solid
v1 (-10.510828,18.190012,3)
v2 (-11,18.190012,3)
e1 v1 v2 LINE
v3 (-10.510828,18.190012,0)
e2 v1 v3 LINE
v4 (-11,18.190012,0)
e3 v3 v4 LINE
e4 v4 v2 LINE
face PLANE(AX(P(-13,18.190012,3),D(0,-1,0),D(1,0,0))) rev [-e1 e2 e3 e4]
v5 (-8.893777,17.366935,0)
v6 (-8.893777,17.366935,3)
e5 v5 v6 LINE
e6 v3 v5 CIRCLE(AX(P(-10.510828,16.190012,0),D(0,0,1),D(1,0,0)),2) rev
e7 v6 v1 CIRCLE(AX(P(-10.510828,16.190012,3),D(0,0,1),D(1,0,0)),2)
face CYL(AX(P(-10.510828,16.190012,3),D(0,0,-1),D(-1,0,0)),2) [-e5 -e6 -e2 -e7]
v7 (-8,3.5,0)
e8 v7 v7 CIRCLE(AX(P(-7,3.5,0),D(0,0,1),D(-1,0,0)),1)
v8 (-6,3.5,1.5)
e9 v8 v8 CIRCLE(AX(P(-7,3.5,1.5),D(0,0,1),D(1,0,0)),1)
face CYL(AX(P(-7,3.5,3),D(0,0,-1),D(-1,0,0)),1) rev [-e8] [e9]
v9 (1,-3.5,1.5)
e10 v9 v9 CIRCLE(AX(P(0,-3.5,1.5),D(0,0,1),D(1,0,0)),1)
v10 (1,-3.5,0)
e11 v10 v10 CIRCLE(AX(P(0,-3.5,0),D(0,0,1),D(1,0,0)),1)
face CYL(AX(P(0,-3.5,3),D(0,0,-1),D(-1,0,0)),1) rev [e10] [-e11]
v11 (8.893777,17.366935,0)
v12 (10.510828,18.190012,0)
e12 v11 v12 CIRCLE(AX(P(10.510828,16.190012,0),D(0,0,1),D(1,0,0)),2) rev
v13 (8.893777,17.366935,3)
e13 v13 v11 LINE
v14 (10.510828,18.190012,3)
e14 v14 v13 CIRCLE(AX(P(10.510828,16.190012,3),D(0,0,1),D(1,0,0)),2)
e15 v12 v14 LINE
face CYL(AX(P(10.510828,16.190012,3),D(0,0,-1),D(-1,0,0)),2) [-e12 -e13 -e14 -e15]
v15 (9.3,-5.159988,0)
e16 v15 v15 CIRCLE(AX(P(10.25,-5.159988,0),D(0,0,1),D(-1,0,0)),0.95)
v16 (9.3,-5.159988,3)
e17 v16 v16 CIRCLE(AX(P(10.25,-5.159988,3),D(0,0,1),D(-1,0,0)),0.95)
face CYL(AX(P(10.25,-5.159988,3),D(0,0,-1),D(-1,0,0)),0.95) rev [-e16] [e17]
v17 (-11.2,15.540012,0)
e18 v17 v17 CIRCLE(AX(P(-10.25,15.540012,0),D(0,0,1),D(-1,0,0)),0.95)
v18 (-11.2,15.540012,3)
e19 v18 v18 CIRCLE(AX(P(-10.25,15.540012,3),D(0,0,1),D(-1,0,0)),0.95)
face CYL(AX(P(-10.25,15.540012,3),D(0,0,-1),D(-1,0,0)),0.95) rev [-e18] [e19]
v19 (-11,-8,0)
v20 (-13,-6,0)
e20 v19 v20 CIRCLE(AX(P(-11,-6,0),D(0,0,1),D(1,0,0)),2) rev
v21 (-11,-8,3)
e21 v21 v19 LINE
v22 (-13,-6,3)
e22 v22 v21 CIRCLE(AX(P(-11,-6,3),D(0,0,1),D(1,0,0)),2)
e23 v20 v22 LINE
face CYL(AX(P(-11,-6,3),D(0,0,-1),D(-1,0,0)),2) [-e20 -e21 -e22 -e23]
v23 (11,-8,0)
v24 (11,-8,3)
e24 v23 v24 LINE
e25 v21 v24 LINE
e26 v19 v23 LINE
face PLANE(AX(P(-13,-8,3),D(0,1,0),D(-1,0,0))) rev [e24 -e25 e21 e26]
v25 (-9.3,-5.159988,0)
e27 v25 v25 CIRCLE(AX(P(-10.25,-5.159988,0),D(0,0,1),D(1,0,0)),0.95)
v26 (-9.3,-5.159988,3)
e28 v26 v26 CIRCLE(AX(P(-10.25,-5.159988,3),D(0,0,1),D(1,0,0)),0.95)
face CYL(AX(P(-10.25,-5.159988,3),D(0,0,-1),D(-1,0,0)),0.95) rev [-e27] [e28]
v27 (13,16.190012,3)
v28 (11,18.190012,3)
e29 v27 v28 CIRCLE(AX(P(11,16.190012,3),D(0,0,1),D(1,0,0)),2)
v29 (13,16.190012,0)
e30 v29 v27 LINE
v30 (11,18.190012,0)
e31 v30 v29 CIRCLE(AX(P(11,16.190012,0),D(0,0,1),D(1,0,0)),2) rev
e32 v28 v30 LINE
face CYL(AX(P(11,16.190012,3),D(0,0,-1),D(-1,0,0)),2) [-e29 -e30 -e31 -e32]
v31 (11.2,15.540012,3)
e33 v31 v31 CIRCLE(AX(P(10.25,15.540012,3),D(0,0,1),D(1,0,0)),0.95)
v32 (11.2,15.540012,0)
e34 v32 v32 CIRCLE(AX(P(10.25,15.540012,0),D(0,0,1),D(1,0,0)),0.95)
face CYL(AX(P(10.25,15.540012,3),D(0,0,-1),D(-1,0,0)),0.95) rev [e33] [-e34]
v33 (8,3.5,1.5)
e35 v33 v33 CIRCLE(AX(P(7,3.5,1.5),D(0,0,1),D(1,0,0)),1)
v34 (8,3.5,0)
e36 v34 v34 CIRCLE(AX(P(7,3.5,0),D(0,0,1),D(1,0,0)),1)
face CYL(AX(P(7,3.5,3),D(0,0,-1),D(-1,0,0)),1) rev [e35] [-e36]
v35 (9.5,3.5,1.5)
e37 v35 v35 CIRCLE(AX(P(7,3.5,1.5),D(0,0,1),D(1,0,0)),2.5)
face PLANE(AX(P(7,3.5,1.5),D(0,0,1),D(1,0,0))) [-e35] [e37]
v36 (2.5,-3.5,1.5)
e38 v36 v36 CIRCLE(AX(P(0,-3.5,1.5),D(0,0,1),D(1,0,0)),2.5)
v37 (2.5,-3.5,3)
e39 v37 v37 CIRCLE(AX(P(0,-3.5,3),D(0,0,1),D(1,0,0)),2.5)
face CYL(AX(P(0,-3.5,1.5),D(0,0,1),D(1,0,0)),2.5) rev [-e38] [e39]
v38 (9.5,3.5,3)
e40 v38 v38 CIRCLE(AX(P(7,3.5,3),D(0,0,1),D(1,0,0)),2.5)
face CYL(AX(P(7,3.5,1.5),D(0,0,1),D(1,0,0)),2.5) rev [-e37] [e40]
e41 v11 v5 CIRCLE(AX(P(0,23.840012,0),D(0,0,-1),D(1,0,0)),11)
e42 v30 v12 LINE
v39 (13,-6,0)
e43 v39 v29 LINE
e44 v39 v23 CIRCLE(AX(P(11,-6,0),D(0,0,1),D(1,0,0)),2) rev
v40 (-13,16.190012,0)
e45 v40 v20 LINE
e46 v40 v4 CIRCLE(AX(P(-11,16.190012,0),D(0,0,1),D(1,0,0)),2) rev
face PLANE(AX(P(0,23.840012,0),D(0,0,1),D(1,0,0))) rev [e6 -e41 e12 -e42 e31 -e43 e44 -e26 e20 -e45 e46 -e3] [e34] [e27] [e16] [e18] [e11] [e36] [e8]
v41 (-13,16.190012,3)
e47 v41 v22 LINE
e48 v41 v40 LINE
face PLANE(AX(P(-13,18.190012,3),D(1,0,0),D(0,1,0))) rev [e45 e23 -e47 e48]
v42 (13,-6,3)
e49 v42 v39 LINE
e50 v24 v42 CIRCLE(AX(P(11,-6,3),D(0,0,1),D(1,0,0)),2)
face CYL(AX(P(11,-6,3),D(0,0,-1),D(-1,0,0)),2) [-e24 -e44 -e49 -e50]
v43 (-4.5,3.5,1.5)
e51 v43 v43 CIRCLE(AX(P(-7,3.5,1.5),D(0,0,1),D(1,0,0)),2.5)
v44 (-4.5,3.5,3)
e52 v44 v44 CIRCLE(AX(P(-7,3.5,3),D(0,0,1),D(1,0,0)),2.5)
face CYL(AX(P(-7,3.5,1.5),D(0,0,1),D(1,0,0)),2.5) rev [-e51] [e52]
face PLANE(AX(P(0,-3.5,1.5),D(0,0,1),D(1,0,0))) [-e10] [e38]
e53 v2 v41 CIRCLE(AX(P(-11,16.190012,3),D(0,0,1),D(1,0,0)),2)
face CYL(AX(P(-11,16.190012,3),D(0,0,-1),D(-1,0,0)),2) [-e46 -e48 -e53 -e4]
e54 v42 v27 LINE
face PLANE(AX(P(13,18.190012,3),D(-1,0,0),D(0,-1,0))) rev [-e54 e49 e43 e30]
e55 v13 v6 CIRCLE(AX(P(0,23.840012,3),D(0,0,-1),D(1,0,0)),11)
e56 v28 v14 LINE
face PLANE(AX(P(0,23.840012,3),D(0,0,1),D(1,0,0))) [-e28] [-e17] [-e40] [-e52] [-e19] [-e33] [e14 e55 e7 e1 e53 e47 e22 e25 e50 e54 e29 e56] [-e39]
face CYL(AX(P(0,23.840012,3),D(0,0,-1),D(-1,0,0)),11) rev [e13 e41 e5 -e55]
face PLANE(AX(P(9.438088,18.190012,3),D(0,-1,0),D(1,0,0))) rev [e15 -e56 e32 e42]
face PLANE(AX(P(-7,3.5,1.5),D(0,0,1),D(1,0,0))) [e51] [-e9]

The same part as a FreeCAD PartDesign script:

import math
import FreeCAD as App
import Part
import Sketcher

V = App.Vector


def edges_at(feature, points):
    """Names of the edges that pass closest to the given points."""
    edges = feature.Shape.Edges
    near = lambda p: min(range(len(edges)), key=lambda i: edges[i].distToShape(Part.Vertex(*p))[0])
    return sorted({f"Edge{near(p) + 1}" for p in points})

doc = App.newDocument("Part")
body = doc.addObject("PartDesign::Body", "Body")

# Sketch on XY plane
sketch1 = body.newObject("Sketcher::SketchObject", "Sketch")
sketch1.AttachmentSupport = (doc.getObject("XY_Plane"), [""])
sketch1.MapMode = "FlatFace"
sketch1.addGeometry([
    Part.LineSegment(V(-13, -8, 0), V(13, -8, 0)),  # 0
    Part.LineSegment(V(13, -8, 0), V(13, 18.190012, 0)),  # 1
    Part.LineSegment(V(13, 18.190012, 0), V(9.438088, 18.190012, 0)),  # 2
    Part.ArcOfCircle(Part.Circle(V(0, 23.840012, 0), V(0, 0, 1), 11), math.radians(-149.093649), math.radians(-30.906351)),  # 3
    Part.LineSegment(V(-9.438088, 18.190012, 0), V(-13, 18.190012, 0)),  # 4
    Part.LineSegment(V(-13, 18.190012, 0), V(-13, -8, 0)),  # 5
    Part.Circle(V(-10.25, -5.159988, 0), V(0, 0, 1), 0.95),  # 6
    Part.Circle(V(-7, 3.5, 0), V(0, 0, 1), 1),  # 7
    Part.Circle(V(0, -3.5, 0), V(0, 0, 1), 1),  # 8
    Part.Circle(V(10.25, -5.159988, 0), V(0, 0, 1), 0.95),  # 9
    Part.Circle(V(7, 3.5, 0), V(0, 0, 1), 1),  # 10
    Part.Circle(V(-10.25, 15.540012, 0), V(0, 0, 1), 0.95),  # 11
    Part.Circle(V(10.25, 15.540012, 0), V(0, 0, 1), 0.95),  # 12
], False)
sketch1.addConstraint([
    Sketcher.Constraint("Coincident", 0, 2, 1, 1),
    Sketcher.Constraint("Coincident", 1, 2, 2, 1),
    Sketcher.Constraint("Coincident", 2, 2, 3, 2),
    Sketcher.Constraint("Coincident", 3, 1, 4, 1),
    Sketcher.Constraint("Coincident", 4, 2, 5, 1),
    Sketcher.Constraint("Coincident", 5, 2, 0, 1),
    Sketcher.Constraint("Horizontal", 0),
    Sketcher.Constraint("Vertical", 1),
    Sketcher.Constraint("Horizontal", 2),
    Sketcher.Constraint("Horizontal", 4),
    Sketcher.Constraint("Vertical", 5),
    Sketcher.Constraint("Equal", 7, 8),
    Sketcher.Constraint("Equal", 6, 9),
    Sketcher.Constraint("Equal", 8, 10),
    Sketcher.Constraint("Equal", 9, 11),
    Sketcher.Constraint("Equal", 11, 12),
    Sketcher.Constraint("Symmetric", 6, 3, 9, 3, -2),
    Sketcher.Constraint("Symmetric", 7, 3, 10, 3, -2),
    Sketcher.Constraint("Symmetric", 11, 3, 12, 3, -2),
    Sketcher.Constraint("Symmetric", 2, 2, 3, 1, -2),
    Sketcher.Constraint("PointOnObject", 8, 3, -2),
    Sketcher.Constraint("Vertical", 6, 3, 11, 3),
    Sketcher.Constraint("Equal", 2, 4),
    Sketcher.Constraint("Diameter", 7, 2.0),
    Sketcher.Constraint("Radius", 3, 11.0),
    Sketcher.Constraint("Diameter", 6, 1.9),
    Sketcher.Constraint("DistanceX", 0, 1, 0, 2, 26.0),
    Sketcher.Constraint("DistanceX", 7, 3, -1, 1, 7.0),
    Sketcher.Constraint("DistanceY", 0, 2, -1, 1, 8.0),
    Sketcher.Constraint("DistanceY", 6, 3, 3, 3, 29.0),
    Sketcher.Constraint("DistanceY", 8, 3, 7, 3, 7.0),
    Sketcher.Constraint("DistanceY", -1, 1, 7, 3, 3.5),
    Sketcher.Constraint("DistanceX", 6, 3, 9, 3, 20.5),
    Sketcher.Constraint("DistanceY", 11, 3, 3, 3, 8.3),
    Sketcher.Constraint("DistanceY", 12, 3, 1, 2, 2.65),
    Sketcher.Constraint("DistanceY", 1, 1, 1, 2, 26.190012),
])
pad1 = body.newObject("PartDesign::Pad", "Pad")
pad1.Profile = sketch1
pad1.Length = 3

# Sketch on XY plane
sketch2 = body.newObject("Sketcher::SketchObject", "Sketch001")
sketch2.AttachmentSupport = (doc.getObject("XY_Plane"), [""])
sketch2.MapMode = "FlatFace"
sketch2.AttachmentOffset = App.Placement(V(0, 0, 3), App.Rotation())
sketch2.addGeometry([
    Part.Circle(V(-7, 3.5, 0), V(0, 0, 1), 2.5),
    Part.Circle(V(7, 3.5, 0), V(0, 0, 1), 2.5),
    Part.Circle(V(0, -3.5, 0), V(0, 0, 1), 2.5),
], False)
sketch2.addConstraint([
    Sketcher.Constraint("Equal", 0, 1),
    Sketcher.Constraint("Equal", 1, 2),
    Sketcher.Constraint("Symmetric", 0, 3, 1, 3, -2),
    Sketcher.Constraint("PointOnObject", 2, 3, -2),
    Sketcher.Constraint("Diameter", 0, 5.0),
    Sketcher.Constraint("DistanceX", 0, 3, -1, 1, 7.0),
    Sketcher.Constraint("DistanceY", 2, 3, 0, 3, 7.0),
    Sketcher.Constraint("DistanceY", -1, 1, 0, 3, 3.5),
])
pocket1 = body.newObject("PartDesign::Pocket", "Pocket")
pocket1.Profile = sketch2
pocket1.Length = 1.5
doc.recompute()

fillet = body.newObject("PartDesign::Fillet", "Fillet")
fillet.Base = (pocket1, edges_at(pocket1, [
    (13, -8, 1.5),
    (-13, -8, 1.5),
    (-13, 18.19, 1.5),
    (-9.438, 18.19, 1.5),
    (9.438, 18.19, 1.5),
    (13, 18.19, 1.5),
]))
fillet.Radius = 2

doc.recompute()
